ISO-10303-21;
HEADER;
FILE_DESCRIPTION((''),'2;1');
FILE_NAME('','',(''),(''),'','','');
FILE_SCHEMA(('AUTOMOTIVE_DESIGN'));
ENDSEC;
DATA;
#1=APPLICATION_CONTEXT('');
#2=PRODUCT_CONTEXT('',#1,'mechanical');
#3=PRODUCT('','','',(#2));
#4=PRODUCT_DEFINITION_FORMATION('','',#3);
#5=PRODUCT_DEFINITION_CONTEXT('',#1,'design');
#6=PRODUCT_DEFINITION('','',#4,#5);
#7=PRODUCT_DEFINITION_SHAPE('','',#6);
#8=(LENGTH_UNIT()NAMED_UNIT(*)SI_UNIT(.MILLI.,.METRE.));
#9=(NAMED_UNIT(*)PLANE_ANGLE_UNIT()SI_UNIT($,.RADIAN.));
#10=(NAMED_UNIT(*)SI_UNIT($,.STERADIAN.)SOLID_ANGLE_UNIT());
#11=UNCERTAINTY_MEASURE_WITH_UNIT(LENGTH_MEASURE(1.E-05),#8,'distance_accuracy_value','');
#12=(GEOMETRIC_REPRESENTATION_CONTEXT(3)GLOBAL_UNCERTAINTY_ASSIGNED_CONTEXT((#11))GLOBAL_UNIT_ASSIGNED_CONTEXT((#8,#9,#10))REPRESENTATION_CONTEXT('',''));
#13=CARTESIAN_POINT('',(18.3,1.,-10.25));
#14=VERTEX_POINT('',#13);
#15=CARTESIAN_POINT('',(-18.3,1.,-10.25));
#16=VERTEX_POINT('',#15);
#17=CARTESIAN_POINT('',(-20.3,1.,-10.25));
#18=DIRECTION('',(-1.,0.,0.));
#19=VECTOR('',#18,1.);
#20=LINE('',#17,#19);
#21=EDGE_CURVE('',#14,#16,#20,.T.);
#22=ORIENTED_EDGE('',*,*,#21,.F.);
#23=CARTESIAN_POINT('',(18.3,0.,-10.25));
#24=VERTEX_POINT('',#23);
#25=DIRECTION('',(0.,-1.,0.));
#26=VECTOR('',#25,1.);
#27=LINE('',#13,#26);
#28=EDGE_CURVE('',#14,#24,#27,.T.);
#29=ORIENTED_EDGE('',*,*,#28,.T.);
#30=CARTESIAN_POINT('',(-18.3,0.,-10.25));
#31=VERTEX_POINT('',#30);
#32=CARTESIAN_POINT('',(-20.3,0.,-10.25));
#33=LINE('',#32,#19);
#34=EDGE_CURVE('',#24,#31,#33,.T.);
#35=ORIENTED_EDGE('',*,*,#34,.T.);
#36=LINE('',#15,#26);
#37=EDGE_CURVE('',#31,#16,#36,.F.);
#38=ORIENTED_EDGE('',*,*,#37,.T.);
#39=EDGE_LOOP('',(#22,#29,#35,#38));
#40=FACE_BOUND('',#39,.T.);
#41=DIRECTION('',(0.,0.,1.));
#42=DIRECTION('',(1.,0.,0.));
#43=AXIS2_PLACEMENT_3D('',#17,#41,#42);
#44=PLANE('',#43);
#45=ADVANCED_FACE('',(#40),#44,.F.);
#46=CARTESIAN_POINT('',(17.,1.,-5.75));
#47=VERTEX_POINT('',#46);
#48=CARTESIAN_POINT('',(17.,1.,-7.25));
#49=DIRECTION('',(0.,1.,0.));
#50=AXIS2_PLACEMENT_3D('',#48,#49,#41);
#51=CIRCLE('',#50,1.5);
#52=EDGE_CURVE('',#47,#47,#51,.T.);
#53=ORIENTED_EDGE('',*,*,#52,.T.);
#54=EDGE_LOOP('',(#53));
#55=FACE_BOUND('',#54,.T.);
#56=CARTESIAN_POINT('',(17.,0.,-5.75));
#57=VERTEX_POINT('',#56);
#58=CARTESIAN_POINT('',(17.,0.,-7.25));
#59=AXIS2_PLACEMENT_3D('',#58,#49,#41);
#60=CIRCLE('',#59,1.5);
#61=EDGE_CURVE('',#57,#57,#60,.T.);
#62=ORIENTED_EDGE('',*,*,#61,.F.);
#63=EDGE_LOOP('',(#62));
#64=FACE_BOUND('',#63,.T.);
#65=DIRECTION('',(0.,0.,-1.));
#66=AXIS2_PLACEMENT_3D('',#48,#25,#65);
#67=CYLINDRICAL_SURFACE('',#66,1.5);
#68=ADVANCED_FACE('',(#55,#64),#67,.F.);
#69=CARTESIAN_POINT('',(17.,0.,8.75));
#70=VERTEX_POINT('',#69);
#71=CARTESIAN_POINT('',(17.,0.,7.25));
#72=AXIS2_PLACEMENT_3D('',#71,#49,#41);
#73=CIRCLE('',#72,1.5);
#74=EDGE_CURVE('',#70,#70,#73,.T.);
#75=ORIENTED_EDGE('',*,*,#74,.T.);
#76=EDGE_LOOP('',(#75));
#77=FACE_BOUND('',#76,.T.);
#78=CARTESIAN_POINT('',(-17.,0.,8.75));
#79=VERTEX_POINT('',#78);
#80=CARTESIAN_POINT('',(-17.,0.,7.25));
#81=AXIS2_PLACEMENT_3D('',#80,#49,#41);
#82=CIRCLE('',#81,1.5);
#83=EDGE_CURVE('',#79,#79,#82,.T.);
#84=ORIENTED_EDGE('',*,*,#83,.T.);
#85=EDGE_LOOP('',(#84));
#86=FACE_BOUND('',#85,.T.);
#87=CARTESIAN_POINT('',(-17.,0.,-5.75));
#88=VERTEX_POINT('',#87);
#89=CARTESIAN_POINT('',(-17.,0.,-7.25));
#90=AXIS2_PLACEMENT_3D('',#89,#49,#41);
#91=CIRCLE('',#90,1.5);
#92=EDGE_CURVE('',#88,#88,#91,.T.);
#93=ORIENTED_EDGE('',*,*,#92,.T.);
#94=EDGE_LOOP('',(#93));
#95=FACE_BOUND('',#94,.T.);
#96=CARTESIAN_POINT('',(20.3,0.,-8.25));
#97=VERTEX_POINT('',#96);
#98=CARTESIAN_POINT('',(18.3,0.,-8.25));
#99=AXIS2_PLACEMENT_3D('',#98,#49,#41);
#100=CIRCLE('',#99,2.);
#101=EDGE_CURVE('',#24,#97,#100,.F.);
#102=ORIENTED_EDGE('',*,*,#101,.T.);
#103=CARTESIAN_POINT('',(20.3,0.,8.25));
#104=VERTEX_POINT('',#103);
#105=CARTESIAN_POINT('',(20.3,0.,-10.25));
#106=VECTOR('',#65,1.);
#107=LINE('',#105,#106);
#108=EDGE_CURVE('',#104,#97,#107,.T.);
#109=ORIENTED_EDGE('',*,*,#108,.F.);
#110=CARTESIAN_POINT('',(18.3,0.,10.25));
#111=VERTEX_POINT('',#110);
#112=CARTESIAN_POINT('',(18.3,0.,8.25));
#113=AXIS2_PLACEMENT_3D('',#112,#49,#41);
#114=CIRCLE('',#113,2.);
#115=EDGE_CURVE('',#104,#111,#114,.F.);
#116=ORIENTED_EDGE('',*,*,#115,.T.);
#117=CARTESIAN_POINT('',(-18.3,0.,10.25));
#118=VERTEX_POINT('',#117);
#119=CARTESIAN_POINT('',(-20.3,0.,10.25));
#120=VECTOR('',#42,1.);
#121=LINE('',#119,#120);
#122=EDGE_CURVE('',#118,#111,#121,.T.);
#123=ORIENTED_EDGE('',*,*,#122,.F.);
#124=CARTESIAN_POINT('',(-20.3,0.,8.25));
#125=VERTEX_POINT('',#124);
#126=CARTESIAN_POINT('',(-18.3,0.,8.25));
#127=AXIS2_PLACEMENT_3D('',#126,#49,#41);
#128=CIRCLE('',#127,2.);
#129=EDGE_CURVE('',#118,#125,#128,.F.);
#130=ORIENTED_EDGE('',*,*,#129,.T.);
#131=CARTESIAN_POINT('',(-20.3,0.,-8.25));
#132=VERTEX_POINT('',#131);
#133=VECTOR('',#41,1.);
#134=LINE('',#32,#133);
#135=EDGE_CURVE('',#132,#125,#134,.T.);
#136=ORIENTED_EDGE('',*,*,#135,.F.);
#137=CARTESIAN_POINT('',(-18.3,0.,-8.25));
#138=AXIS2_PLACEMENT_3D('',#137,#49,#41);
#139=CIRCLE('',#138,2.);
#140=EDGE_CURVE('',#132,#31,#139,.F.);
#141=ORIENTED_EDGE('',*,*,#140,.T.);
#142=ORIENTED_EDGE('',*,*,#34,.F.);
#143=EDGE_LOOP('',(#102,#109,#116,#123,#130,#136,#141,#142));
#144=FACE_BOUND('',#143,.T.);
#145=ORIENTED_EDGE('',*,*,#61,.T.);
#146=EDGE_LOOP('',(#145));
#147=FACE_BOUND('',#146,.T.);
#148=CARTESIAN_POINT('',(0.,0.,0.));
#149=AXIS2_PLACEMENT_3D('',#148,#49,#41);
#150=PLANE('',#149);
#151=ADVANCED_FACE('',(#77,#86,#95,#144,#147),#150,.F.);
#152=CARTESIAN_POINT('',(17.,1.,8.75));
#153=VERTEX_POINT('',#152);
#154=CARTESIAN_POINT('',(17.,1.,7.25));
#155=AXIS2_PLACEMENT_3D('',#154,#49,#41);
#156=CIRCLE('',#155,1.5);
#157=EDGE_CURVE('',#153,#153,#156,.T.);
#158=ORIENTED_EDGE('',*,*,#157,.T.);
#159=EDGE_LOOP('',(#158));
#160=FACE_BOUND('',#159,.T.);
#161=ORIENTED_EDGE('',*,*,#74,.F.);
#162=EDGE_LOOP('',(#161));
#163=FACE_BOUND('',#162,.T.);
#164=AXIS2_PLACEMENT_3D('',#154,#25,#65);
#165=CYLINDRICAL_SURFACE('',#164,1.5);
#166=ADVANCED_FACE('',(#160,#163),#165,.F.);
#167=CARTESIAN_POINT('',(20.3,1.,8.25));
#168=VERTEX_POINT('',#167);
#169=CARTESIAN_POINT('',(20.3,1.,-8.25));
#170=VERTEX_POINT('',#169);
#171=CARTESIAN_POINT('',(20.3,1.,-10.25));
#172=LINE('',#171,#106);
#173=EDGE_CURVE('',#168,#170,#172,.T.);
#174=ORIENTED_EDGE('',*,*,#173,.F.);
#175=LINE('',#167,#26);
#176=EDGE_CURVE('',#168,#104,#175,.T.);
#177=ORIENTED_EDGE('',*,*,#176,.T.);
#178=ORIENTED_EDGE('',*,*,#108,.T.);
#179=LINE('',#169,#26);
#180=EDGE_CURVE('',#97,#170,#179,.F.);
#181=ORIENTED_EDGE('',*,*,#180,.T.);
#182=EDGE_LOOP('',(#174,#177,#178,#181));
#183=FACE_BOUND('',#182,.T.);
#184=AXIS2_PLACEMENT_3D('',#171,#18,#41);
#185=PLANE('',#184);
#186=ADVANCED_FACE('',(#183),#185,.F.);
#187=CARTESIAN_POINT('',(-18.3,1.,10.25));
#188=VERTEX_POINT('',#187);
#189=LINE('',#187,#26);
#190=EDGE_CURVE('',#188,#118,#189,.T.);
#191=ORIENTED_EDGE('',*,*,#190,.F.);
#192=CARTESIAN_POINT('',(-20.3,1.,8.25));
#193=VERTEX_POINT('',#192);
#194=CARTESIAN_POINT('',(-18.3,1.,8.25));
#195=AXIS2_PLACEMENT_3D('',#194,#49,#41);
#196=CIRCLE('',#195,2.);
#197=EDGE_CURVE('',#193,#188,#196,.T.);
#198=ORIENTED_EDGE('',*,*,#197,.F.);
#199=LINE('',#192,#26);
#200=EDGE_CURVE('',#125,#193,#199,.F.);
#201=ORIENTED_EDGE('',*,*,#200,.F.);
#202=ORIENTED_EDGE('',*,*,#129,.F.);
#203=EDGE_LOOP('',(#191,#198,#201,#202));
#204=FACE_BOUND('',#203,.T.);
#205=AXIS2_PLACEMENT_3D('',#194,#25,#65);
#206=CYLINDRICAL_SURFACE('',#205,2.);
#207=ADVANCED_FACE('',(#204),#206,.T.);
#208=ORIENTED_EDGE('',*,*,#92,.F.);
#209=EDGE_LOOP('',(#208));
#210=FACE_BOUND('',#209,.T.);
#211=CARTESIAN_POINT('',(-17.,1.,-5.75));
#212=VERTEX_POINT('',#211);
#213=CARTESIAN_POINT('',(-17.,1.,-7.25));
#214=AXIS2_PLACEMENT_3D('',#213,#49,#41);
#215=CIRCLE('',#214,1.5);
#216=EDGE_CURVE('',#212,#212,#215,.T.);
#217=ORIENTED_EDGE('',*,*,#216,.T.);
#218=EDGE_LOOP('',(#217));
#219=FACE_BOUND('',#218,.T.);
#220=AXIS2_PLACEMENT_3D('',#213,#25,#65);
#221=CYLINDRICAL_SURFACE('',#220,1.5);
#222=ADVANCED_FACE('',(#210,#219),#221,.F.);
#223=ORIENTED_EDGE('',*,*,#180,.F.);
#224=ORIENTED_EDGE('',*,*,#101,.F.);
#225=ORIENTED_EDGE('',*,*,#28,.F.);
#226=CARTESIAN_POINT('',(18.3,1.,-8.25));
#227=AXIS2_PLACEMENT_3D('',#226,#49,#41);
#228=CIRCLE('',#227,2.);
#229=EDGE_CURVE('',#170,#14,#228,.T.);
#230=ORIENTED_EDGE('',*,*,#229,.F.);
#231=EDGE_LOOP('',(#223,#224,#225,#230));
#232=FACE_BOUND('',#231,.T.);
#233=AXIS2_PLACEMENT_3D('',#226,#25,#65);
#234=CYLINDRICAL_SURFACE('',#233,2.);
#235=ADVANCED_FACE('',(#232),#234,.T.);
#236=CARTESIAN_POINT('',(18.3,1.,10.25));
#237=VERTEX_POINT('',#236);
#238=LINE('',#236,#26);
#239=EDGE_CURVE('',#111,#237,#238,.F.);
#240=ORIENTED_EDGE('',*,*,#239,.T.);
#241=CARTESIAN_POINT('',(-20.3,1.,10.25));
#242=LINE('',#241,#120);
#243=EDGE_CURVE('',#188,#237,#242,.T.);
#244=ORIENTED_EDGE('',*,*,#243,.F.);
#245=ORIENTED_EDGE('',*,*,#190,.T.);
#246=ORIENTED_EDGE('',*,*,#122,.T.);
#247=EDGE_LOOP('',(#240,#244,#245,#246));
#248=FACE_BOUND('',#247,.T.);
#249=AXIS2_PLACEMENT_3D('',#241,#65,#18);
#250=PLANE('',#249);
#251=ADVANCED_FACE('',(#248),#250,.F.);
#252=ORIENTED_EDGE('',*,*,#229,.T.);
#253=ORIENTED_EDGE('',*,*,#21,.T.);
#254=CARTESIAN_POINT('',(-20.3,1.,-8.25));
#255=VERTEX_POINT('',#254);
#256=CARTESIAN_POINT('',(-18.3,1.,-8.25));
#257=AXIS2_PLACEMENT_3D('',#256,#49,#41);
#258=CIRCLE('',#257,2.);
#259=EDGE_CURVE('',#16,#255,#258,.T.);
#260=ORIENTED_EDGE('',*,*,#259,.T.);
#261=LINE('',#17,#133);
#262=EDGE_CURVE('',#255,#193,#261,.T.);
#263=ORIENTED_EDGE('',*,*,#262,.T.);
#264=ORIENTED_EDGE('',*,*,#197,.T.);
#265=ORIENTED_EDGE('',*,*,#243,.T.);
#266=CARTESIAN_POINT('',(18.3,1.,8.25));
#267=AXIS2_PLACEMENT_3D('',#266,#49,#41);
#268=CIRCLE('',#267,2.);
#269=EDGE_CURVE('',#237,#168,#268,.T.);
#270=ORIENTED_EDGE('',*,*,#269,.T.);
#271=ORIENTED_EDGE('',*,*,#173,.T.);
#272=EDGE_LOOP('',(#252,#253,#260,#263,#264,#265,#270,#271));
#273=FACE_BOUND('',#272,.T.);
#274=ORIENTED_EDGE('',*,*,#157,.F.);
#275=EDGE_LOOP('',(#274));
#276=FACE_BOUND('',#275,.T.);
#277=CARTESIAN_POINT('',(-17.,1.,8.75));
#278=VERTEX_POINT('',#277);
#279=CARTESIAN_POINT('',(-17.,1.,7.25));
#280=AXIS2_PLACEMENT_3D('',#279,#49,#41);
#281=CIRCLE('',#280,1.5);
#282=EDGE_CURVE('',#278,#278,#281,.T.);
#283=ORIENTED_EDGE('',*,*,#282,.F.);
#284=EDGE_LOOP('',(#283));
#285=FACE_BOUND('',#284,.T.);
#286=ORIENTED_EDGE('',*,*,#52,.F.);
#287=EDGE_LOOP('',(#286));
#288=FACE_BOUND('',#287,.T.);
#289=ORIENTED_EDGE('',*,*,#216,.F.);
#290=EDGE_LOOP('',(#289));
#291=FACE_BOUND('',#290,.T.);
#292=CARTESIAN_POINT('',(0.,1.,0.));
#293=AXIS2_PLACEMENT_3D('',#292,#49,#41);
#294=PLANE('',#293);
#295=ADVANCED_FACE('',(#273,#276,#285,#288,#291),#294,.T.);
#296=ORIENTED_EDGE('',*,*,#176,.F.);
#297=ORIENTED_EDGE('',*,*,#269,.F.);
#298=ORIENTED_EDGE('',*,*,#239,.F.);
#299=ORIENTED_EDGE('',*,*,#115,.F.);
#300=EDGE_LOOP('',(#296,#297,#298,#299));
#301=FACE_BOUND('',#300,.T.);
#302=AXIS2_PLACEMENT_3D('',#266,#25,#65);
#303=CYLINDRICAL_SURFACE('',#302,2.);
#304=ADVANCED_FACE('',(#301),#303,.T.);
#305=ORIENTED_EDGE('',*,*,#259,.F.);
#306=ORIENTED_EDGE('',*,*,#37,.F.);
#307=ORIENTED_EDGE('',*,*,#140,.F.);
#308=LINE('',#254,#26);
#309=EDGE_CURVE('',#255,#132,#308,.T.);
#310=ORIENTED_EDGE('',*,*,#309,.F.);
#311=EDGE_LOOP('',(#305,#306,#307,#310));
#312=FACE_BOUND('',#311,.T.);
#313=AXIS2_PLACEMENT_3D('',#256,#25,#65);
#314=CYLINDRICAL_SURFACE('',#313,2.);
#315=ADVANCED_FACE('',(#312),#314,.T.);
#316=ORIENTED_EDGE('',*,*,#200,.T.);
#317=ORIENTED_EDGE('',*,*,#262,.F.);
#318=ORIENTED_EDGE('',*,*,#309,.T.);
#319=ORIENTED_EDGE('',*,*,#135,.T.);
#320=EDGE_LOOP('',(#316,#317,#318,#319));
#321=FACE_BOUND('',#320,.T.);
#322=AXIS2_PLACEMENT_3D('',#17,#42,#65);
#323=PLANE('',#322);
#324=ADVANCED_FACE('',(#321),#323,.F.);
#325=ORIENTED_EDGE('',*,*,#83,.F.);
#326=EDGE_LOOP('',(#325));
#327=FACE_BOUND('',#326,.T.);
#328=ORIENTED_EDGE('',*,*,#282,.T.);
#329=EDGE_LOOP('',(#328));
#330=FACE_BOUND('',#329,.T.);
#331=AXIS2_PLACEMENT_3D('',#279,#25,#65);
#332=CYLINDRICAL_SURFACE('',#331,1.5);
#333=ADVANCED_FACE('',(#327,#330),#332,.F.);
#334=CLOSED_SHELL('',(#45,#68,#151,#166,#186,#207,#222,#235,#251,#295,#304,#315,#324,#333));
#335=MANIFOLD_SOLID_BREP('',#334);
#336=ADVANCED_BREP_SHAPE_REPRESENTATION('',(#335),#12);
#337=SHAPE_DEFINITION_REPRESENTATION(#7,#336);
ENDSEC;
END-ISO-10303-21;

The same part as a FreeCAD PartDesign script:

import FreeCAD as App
import Part
import Sketcher

V = App.Vector
Q = App.Units.Quantity


def edges_at(feature, points):
    """Names of the edges that pass closest to the given points."""
    edges = feature.Shape.Edges
    near = lambda p: min(range(len(edges)), key=lambda i: edges[i].distToShape(Part.Vertex(*p))[0])
    return sorted({f"Edge{near(p) + 1}" for p in points})

doc = App.newDocument("Part")
body = doc.addObject("PartDesign::Body", "Body")

# Sketch on XZ plane
sketch1 = body.newObject("Sketcher::SketchObject", "Sketch")
sketch1.AttachmentSupport = (doc.getObject("XZ_Plane"), [""])
sketch1.MapMode = "FlatFace"
sketch1.addGeometry(Part.LineSegment(V(-20.3, -10.2, 0), V(-20.3, 10.2, 0)), False)
sketch1.addGeometry(Part.LineSegment(V(-20.3, 10.2, 0), V(20.3, 10.2, 0)), False)
sketch1.addGeometry(Part.LineSegment(V(20.3, 10.2, 0), V(20.3, -10.2, 0)), False)
sketch1.addGeometry(Part.LineSegment(V(20.3, -10.2, 0), V(-20.3, -10.2, 0)), False)
sketch1.addGeometry(Part.Circle(V(-17, 7.2, 0), V(0, 0, 1), 1.5), False)
sketch1.addGeometry(Part.Circle(V(17, 7.2, 0), V(0, 0, 1), 1.5), False)
sketch1.addGeometry(Part.Circle(V(-17, -7.2, 0), V(0, 0, 1), 1.5), False)
sketch1.addGeometry(Part.Circle(V(17, -7.2, 0), V(0, 0, 1), 1.5), False)
sketch1.addConstraint(Sketcher.Constraint("Coincident", 0, 2, 1, 1))
sketch1.addConstraint(Sketcher.Constraint("Coincident", 1, 2, 2, 1))
sketch1.addConstraint(Sketcher.Constraint("Coincident", 2, 2, 3, 1))
sketch1.addConstraint(Sketcher.Constraint("Coincident", 3, 2, 0, 1))
sketch1.addConstraint(Sketcher.Constraint("Vertical", 0))
sketch1.addConstraint(Sketcher.Constraint("Horizontal", 1))
sketch1.addConstraint(Sketcher.Constraint("Vertical", 2))
sketch1.addConstraint(Sketcher.Constraint("Horizontal", 3))
sketch1.addConstraint(Sketcher.Constraint("Equal", 4, 5))
sketch1.addConstraint(Sketcher.Constraint("Equal", 5, 6))
sketch1.addConstraint(Sketcher.Constraint("Equal", 6, 7))
sketch1.addConstraint(Sketcher.Constraint("Symmetric", 5, 3, 6, 3, -1, 1))
sketch1.addConstraint(Sketcher.Constraint("Symmetric", 4, 3, 7, 3, -1, 1))
sketch1.addConstraint(Sketcher.Constraint("Symmetric", 0, 2, 2, 2, -1, 1))
sketch1.addConstraint(Sketcher.Constraint("Symmetric", 4, 3, 5, 3, -2))
sketch1.addConstraint(Sketcher.Constraint("Diameter", 4, Q("3 mm")))
sketch1.addConstraint(Sketcher.Constraint("DistanceX", 1, 1, 1, 2, Q("40.6 mm")))
sketch1.addConstraint(Sketcher.Constraint("DistanceY", 0, 1, 0, 2, Q("20.5 mm")))
sketch1.addConstraint(Sketcher.Constraint("DistanceX", 4, 3, -1, 1, Q("17 mm")))
sketch1.addConstraint(Sketcher.Constraint("DistanceY", 4, 3, 0, 2, Q("3 mm")))
pad1 = body.newObject("PartDesign::Pad", "Pad")
pad1.Profile = sketch1
pad1.Length = 1
pad1.Reversed = True
doc.recompute()

fillet = body.newObject("PartDesign::Fillet", "Fillet")
fillet.Base = (pad1, edges_at(pad1, [
    (-20.3, 0.5, -10.25),
    (20.3, 0.5, -10.25),
    (20.3, 0.5, 10.25),
    (-20.3, 0.5, 10.25),
]))
fillet.Radius = 2

doc.recompute()
